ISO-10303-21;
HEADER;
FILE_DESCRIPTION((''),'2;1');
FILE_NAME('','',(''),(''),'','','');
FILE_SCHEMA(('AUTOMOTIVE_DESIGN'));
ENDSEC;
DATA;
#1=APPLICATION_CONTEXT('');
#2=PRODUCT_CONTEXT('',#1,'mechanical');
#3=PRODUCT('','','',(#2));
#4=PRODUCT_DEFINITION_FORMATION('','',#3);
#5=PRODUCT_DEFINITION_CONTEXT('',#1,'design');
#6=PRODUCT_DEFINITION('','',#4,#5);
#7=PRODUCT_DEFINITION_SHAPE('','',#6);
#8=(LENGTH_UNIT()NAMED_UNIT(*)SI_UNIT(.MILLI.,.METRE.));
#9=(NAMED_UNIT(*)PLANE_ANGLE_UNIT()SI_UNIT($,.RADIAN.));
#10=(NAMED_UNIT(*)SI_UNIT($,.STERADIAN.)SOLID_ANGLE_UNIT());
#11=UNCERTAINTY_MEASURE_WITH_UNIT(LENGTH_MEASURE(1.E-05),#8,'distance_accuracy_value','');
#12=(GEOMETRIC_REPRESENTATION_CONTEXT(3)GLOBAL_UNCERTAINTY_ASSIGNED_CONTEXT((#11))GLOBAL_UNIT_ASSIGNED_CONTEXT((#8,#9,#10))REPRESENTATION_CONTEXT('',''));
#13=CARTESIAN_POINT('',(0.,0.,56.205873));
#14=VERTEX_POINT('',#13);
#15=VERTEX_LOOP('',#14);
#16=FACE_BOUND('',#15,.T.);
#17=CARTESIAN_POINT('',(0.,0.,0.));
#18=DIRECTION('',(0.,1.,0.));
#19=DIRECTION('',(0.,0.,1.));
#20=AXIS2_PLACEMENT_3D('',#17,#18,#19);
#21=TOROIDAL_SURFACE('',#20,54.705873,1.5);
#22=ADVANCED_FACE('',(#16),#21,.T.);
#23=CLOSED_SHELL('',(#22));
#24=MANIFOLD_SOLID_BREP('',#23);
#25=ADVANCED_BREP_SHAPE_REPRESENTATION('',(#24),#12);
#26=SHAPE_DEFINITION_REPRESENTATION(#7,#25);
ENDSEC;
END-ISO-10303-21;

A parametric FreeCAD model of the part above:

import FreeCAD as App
import Part
import Sketcher

V = App.Vector
Q = App.Units.Quantity

doc = App.newDocument("Part")
params = doc.addObject("Spreadsheet::Sheet", "Params")
for row, (alias, value) in enumerate([
    ("sketch1_diameter", "3 mm"),
    ("revolution_angle", "360 deg"),
], start=1):
    params.set(f"A{row}", alias)
    params.set(f"B{row}", "=" + value)
    params.setAlias(f"B{row}", alias)

body = doc.addObject("PartDesign::Body", "Body")

# Sketch on XY plane
sketch1 = body.newObject("Sketcher::SketchObject", "Sketch")
sketch1.AttachmentSupport = (doc.getObject("XY_Plane"), [""])
sketch1.MapMode = "FlatFace"
sketch1.addGeometry(Part.Circle(V(54.7, 0, 0), V(0, 0, 1), 1.5), False)
sketch1.addConstraint(Sketcher.Constraint("PointOnObject", 0, 3, -1))
sketch1.addConstraint(Sketcher.Constraint("Diameter", 0, Q("3 mm")))
sketch1.addConstraint(Sketcher.Constraint("DistanceX", -1, 1, 0, 3, Q("54.705873 mm")))
sketch1.setExpression("Constraints[1]", "Params.sketch1_diameter")
revolution = body.newObject("PartDesign::Revolution", "Revolution")
revolution.Profile = sketch1
revolution.ReferenceAxis = (sketch1, ["V_Axis"])
revolution.setExpression("Angle", "Params.revolution_angle")

doc.recompute()
